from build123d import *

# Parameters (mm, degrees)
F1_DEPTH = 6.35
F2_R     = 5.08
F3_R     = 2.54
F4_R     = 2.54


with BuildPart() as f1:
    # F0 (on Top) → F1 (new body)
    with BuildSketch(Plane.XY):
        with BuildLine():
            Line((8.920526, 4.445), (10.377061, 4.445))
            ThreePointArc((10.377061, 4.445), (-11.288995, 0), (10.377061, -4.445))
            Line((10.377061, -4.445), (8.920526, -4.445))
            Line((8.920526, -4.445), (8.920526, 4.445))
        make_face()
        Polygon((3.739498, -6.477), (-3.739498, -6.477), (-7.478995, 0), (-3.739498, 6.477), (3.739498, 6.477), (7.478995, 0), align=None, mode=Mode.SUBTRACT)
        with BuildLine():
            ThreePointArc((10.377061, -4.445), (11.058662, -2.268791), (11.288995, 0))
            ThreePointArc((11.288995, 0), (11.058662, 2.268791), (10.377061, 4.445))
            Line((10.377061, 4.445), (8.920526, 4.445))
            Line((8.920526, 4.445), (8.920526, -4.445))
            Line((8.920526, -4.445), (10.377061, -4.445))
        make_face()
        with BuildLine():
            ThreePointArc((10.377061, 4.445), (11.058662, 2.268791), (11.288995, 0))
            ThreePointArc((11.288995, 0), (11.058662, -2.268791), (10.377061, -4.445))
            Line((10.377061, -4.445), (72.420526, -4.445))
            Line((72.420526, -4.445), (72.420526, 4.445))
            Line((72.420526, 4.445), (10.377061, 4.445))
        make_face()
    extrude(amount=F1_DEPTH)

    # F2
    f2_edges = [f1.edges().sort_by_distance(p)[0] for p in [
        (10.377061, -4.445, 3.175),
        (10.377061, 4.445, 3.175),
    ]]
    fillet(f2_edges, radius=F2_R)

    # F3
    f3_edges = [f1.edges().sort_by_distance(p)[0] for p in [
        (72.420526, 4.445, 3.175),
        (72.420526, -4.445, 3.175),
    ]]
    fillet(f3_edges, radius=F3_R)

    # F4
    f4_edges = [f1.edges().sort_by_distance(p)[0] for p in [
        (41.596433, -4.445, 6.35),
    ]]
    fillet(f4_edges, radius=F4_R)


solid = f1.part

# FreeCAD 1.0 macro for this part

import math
import FreeCAD as App
import Part
import Sketcher

V = App.Vector
Q = App.Units.Quantity


def edges_at(feature, points):
    """Names of the edges that pass closest to the given points."""
    edges = feature.Shape.Edges
    near = lambda p: min(range(len(edges)), key=lambda i: edges[i].distToShape(Part.Vertex(*p))[0])
    return sorted({f"Edge{near(p) + 1}" for p in points})


def add_polygon(sketch, points):
    """Adds a closed chain of lines whose ends are joined by coincident constraints."""
    first, n = sketch.GeometryCount, len(points)
    for a, b in zip(points, points[1:] + points[:1]):
        sketch.addGeometry(Part.LineSegment(App.Vector(*a, 0), App.Vector(*b, 0)), False)
    for i in range(n):
        sketch.addConstraint(Sketcher.Constraint("Coincident", first + i, 2, first + (i + 1) % n, 1))

doc = App.newDocument("Part")
params = doc.addObject("Spreadsheet::Sheet", "Params")
for row, (alias, value) in enumerate([
    ("sketch1_height", "0.35 in"),
    ("pad1_length", "0.25 in"),
    ("fillet_radius", "0.2 in"),
    ("fillet2_radius", "0.1 in"),
    ("fillet3_radius", "0.1 in"),
], start=1):
    params.set(f"A{row}", alias)
    params.set(f"B{row}", "=" + value)
    params.setAlias(f"B{row}", alias)

body = doc.addObject("PartDesign::Body", "Body")

# Sketch on XY plane
sketch1 = body.newObject("Sketcher::SketchObject", "Sketch")
sketch1.AttachmentSupport = (doc.getObject("XY_Plane"), [""])
sketch1.MapMode = "FlatFace"
sketch1.addGeometry(Part.ArcOfCircle(Part.Circle(V(0, 0, 0), V(0, 0, 1), 11), math.radians(23), math.radians(337)), False)  # 0
sketch1.addGeometry(Part.LineSegment(V(10, -4, 0), V(72, -4, 0)), False)  # 1
sketch1.addGeometry(Part.LineSegment(V(72, -4, 0), V(72, 4, 0)), False)  # 2
sketch1.addGeometry(Part.LineSegment(V(72, 4, 0), V(10, 4, 0)), False)  # 3
add_polygon(sketch1, [(7, 0), (4, -6), (-4, -6), (-7, 0), (-4, 6), (4, 6)])  # lines 4-9
sketch1.addConstraint(Sketcher.Constraint("Coincident", 0, 2, 1, 1))
sketch1.addConstraint(Sketcher.Constraint("Coincident", 1, 2, 2, 1))
sketch1.addConstraint(Sketcher.Constraint("Coincident", 2, 2, 3, 1))
sketch1.addConstraint(Sketcher.Constraint("Coincident", 3, 2, 0, 1))
sketch1.addConstraint(Sketcher.Constraint("Horizontal", 1))
sketch1.addConstraint(Sketcher.Constraint("Vertical", 2))
sketch1.addConstraint(Sketcher.Constraint("Horizontal", 3))
sketch1.addConstraint(Sketcher.Constraint("Horizontal", 5))
sketch1.addConstraint(Sketcher.Constraint("Horizontal", 8))
sketch1.addConstraint(Sketcher.Constraint("Coincident", 0, 3, -1, 1))
sketch1.addConstraint(Sketcher.Constraint("Symmetric", 4, 2, 7, 2, -1, 1))
sketch1.addConstraint(Sketcher.Constraint("Symmetric", 6, 2, 9, 2, -1, 1))
sketch1.addConstraint(Sketcher.Constraint("PointOnObject", 6, 2, -1))
sketch1.addConstraint(Sketcher.Constraint("Parallel", 6, 9))
sketch1.addConstraint(Sketcher.Constraint("Vertical", 0, 2, 3, 2))
sketch1.addConstraint(Sketcher.Constraint("Vertical", 5, 2, 7, 2))
sketch1.addConstraint(Sketcher.Constraint("Angle", 4, Q("-119.999995 deg")))
sketch1.addConstraint(Sketcher.Constraint("DistanceY", 2, 1, 2, 2, Q("0.35 in")))
sketch1.addConstraint(Sketcher.Constraint("DistanceY", 4, 2, 0, 2, Q("0.08 in")))
sketch1.addConstraint(Sketcher.Constraint("Radius", 0, Q("11.288995 mm")))
sketch1.addConstraint(Sketcher.Constraint("DistanceX", -1, 1, 4, 2, Q("3.739498 mm")))
sketch1.addConstraint(Sketcher.Constraint("DistanceX", 1, 1, 1, 2, Q("62.043465 mm")))
sketch1.setExpression("Constraints[23]", "Params.sketch1_height")
pad1 = body.newObject("PartDesign::Pad", "Pad")
pad1.Profile = sketch1
pad1.setExpression("Length", "Params.pad1_length")
doc.recompute()

fillet = body.newObject("PartDesign::Fillet", "Fillet")
fillet.Base = (pad1, edges_at(pad1, [(10.377, -4.445, 3.175), (10.377, 4.445, 3.175)]))
fillet.setExpression("Radius", "Params.fillet_radius")
doc.recompute()

fillet2 = body.newObject("PartDesign::Fillet", "Fillet001")
fillet2.Base = (fillet, edges_at(fillet, [(72.421, 4.445, 3.175), (72.421, -4.445, 3.175)]))
fillet2.setExpression("Radius", "Params.fillet2_radius")
doc.recompute()

fillet3 = body.newObject("PartDesign::Fillet", "Fillet002")
fillet3.Base = (fillet2, edges_at(fillet2, [(41.596, -4.445, 6.35)]))
fillet3.setExpression("Radius", "Params.fillet3_radius")

doc.recompute()
